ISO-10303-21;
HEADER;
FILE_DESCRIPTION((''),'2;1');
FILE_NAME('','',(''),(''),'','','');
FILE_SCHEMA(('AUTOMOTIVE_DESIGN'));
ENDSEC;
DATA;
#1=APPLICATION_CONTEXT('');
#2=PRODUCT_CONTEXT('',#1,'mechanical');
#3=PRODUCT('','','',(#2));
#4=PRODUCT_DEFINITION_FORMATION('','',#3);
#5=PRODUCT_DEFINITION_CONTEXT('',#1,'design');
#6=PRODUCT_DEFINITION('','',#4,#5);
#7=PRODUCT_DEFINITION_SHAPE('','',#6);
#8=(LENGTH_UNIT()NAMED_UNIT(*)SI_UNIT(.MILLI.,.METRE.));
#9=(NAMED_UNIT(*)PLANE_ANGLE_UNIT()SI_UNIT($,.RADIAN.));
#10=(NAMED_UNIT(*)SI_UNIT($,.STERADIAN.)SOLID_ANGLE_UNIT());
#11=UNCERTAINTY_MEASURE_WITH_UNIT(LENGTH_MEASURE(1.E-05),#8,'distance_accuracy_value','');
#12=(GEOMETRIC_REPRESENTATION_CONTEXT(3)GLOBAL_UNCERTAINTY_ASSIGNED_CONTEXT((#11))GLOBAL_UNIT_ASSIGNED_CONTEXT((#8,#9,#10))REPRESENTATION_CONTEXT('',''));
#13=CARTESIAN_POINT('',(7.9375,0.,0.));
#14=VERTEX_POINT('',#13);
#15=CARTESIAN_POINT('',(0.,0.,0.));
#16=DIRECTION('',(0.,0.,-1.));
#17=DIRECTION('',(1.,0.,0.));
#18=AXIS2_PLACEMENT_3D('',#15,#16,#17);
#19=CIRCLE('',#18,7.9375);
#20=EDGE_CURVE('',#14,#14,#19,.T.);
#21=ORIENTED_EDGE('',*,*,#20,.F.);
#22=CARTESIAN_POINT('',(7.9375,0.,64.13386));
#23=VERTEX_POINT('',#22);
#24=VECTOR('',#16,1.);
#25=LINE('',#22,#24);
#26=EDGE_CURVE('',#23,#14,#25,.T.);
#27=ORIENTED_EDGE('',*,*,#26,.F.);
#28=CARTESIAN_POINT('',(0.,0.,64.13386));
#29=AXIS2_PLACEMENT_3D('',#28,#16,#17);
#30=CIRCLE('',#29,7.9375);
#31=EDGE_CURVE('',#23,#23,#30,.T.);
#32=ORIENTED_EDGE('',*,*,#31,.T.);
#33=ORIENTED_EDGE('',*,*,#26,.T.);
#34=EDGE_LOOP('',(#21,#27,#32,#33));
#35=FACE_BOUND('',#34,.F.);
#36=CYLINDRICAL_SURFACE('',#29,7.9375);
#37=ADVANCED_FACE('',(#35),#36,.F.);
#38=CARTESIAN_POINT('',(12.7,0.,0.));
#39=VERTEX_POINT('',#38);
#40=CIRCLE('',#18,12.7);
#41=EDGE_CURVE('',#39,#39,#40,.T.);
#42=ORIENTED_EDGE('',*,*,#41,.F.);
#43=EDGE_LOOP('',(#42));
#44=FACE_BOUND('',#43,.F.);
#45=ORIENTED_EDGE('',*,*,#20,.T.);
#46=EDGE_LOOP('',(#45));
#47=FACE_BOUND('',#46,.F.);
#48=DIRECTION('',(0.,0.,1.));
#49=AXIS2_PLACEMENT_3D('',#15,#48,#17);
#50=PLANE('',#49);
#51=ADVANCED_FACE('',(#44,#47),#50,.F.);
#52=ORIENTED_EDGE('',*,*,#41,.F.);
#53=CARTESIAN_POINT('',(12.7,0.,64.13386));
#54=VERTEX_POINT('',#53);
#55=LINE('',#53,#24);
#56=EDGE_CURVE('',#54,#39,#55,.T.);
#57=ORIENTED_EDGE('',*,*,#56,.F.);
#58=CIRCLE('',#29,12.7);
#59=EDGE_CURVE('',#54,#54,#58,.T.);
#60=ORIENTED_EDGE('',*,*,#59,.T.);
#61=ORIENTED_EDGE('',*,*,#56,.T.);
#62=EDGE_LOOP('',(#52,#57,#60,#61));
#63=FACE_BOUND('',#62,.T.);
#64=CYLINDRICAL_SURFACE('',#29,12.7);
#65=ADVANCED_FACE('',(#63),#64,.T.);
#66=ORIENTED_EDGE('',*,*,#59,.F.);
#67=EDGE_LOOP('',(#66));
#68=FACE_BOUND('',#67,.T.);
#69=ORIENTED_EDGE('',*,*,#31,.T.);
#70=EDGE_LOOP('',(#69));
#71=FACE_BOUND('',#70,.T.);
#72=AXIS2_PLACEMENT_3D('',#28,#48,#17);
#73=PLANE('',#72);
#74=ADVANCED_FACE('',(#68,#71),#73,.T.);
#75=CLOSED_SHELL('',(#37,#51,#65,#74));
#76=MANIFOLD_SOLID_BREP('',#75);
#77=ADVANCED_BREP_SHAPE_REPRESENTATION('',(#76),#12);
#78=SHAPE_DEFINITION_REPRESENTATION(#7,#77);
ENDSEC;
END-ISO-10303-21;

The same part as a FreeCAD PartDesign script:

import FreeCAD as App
import Part
import Sketcher

V = App.Vector
Q = App.Units.Quantity

doc = App.newDocument("Part")
body = doc.addObject("PartDesign::Body", "Body")

# Sketch on XY plane
sketch1 = body.newObject("Sketcher::SketchObject", "Sketch")
sketch1.AttachmentSupport = (doc.getObject("XY_Plane"), [""])
sketch1.MapMode = "FlatFace"
sketch1.AttachmentOffset = App.Placement(V(0, 0, 64.13386), App.Rotation())
sketch1.addGeometry([
    Part.Circle(V(0, 0, 0), V(0, 0, 1), 13),
    Part.Circle(V(0, 0, 0), V(0, 0, 1), 8),
], False)
sketch1.addConstraint([
    Sketcher.Constraint("Coincident", 0, 3, -1, 1),
    Sketcher.Constraint("Coincident", 1, 3, -1, 1),
    Sketcher.Constraint("Diameter", 0, Q("1 in")),
    Sketcher.Constraint("Diameter", 1, Q("0.625 in")),
])

# Sketch on XZ plane
sketch2 = body.newObject("Sketcher::SketchObject", "Sketch001")
sketch2.AttachmentSupport = (doc.getObject("XZ_Plane"), [""])
sketch2.MapMode = "FlatFace"
sketch2.addGeometry(Part.LineSegment(V(0, 64, 0), V(0, 0, 0)), False)
sketch2.addConstraint([
    Sketcher.Constraint("Vertical", 0),
    Sketcher.Constraint("Coincident", 0, 2, -1, 1),
    Sketcher.Constraint("DistanceY", 0, 2, 0, 1, Q("64.13386 mm")),
])
doc.recompute()

additivepipe = body.newObject("PartDesign::AdditivePipe", "AdditivePipe")
additivepipe.Profile = sketch1
additivepipe.Spine = (sketch2, ["Edge1"])

doc.recompute()
